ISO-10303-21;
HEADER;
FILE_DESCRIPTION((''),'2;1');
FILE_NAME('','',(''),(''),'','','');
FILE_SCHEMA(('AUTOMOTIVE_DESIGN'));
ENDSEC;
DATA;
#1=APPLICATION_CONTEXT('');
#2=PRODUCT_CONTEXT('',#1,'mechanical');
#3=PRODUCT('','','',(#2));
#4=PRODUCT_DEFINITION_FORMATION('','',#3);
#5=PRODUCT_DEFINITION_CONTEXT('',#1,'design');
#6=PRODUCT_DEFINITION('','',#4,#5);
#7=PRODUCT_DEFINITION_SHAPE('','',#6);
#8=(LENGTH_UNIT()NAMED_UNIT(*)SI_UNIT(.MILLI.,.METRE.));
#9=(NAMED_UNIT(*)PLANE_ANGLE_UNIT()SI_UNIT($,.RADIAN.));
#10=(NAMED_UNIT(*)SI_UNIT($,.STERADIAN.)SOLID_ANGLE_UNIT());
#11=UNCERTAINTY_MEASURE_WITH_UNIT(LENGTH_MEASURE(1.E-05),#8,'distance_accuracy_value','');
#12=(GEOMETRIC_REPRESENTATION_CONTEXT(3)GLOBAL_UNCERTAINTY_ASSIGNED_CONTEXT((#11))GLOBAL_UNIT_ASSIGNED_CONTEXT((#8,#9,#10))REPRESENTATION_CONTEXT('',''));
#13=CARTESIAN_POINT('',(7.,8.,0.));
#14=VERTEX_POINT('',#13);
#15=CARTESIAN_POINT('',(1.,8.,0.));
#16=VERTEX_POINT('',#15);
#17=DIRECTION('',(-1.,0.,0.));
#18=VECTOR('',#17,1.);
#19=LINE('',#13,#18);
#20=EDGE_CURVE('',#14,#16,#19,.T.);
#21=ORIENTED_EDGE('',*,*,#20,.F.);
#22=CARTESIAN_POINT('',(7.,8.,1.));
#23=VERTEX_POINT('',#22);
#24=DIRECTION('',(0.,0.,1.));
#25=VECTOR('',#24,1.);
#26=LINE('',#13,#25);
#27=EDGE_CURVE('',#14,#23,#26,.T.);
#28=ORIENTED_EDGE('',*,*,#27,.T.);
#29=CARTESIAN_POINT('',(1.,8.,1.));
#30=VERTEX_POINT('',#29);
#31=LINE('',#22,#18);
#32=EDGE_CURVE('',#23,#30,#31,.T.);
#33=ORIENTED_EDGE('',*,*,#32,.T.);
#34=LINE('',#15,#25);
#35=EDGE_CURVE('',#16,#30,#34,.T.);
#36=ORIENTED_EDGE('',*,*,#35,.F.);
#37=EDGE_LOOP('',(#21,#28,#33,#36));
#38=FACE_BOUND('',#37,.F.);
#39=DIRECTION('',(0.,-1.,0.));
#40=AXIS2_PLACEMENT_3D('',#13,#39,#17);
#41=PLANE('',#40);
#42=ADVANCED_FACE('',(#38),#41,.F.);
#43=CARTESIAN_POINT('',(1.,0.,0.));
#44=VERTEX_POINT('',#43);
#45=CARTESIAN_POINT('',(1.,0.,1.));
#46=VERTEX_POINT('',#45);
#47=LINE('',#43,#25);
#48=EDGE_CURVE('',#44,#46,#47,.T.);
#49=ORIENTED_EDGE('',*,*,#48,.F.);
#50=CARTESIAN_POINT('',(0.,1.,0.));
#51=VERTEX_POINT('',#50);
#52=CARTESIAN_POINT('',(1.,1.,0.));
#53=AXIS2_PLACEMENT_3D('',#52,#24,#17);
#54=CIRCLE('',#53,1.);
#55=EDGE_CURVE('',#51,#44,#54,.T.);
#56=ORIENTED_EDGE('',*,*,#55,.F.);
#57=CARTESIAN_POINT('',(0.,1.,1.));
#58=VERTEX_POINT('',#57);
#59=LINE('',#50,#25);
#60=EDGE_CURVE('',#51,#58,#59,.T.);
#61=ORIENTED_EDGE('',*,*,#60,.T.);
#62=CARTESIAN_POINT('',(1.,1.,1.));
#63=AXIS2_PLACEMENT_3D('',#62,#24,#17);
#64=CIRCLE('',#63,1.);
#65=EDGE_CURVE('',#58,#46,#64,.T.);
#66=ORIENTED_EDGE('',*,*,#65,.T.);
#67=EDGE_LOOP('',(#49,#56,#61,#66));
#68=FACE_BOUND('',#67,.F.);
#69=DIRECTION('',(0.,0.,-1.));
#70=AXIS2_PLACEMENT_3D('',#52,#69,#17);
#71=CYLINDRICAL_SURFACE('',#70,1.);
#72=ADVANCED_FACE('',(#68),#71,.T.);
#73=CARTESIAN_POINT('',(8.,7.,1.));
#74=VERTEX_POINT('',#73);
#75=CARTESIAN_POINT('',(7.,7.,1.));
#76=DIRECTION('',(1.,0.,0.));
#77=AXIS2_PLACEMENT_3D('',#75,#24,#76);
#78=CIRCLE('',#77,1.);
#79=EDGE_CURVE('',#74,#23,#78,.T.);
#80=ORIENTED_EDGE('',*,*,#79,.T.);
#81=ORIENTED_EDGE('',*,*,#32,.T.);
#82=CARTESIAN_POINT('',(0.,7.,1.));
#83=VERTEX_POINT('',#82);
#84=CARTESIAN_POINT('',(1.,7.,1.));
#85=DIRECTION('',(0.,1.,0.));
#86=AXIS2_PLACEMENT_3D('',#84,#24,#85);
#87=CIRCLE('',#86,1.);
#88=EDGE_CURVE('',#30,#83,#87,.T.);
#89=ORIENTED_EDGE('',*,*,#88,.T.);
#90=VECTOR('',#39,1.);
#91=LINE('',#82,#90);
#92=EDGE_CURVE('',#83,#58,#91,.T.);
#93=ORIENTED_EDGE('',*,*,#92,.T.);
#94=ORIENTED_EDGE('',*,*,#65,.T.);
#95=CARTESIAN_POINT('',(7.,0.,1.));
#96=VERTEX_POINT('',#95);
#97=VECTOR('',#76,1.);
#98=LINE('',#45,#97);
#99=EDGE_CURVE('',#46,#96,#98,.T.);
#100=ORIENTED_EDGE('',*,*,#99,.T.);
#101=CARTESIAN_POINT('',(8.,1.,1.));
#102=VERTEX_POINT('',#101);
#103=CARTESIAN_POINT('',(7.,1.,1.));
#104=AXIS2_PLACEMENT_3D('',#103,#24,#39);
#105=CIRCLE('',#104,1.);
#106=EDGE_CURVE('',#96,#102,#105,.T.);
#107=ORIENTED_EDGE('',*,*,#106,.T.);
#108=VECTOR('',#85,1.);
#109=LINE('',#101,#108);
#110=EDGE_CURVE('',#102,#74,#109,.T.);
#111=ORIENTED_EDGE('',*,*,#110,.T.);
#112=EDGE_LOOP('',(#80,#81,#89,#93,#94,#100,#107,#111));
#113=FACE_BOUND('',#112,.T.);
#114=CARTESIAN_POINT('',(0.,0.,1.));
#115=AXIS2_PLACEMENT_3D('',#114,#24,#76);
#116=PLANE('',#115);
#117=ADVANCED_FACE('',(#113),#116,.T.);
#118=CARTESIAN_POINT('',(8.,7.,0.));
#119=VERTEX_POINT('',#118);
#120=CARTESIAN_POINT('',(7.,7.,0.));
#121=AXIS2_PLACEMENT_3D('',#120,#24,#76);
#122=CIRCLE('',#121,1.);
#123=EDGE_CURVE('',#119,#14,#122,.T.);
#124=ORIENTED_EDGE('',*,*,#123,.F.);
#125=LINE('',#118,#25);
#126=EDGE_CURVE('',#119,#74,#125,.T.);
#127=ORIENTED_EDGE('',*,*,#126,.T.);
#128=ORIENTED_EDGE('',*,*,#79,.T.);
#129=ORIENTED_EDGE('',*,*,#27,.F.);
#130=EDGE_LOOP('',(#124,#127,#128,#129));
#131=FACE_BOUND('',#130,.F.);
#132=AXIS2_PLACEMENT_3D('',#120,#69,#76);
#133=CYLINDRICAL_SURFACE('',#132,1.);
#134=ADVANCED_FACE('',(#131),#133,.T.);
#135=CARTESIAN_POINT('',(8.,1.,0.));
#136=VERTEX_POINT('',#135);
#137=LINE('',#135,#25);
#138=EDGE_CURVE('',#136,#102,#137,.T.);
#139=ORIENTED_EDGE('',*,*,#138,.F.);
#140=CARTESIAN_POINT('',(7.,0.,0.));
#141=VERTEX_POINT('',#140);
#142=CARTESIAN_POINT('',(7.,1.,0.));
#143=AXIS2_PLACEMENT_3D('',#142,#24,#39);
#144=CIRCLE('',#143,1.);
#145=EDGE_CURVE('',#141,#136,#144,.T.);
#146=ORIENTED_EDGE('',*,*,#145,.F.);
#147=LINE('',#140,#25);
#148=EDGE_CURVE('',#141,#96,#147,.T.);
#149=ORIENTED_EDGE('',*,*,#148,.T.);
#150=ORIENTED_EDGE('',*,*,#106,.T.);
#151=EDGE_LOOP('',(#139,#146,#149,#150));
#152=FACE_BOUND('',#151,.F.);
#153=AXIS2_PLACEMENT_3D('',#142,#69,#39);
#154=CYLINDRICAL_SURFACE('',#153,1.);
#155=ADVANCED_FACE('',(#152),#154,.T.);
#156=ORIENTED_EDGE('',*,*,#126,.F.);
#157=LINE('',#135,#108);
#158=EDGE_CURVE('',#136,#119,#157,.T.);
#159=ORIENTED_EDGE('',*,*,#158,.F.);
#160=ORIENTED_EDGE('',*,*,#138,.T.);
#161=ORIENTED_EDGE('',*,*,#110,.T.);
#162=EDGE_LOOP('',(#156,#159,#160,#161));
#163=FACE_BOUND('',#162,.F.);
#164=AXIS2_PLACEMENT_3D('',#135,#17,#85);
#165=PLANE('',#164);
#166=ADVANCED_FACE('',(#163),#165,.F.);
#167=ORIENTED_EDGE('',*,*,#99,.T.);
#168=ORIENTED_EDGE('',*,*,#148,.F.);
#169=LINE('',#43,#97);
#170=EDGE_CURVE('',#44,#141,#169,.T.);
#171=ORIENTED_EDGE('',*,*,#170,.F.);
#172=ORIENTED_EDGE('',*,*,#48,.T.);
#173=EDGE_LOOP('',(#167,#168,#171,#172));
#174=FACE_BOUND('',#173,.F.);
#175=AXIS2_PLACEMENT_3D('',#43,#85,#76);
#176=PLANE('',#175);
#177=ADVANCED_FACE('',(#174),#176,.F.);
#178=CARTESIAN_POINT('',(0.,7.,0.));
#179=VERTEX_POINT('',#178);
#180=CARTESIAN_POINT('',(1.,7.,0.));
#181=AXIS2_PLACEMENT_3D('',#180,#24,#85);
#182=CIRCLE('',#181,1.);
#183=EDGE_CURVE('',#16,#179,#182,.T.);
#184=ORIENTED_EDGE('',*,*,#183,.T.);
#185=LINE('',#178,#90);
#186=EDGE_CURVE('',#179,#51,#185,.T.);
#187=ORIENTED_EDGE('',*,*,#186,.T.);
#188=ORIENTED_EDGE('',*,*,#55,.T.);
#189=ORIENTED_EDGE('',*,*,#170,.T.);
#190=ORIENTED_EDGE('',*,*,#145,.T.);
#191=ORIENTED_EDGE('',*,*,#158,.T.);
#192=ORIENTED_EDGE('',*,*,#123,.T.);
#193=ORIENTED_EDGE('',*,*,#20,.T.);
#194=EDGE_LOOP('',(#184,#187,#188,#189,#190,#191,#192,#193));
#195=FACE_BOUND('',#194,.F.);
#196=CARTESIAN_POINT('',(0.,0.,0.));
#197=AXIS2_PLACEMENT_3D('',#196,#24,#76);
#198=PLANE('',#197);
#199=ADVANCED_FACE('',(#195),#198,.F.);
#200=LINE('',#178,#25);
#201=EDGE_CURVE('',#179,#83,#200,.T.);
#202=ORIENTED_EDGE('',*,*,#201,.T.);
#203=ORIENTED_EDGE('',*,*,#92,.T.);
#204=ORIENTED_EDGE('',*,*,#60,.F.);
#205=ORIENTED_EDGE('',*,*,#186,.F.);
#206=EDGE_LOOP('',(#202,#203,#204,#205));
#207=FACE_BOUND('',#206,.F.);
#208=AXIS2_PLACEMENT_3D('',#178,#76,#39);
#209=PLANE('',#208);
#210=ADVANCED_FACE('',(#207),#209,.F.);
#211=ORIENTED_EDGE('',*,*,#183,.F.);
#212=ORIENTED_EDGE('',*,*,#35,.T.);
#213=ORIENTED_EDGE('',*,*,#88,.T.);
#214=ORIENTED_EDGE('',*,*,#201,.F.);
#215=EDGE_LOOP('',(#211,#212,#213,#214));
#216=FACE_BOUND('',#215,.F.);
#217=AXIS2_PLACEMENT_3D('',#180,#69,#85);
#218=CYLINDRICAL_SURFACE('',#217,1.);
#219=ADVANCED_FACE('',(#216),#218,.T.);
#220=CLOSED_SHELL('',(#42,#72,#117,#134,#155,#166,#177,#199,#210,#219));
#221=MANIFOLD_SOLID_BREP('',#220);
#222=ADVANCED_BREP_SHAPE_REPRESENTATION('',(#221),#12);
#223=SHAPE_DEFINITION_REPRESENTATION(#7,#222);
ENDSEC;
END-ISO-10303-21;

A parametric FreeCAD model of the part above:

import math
import FreeCAD as App
import Part
import Sketcher

doc = App.newDocument("Part")
params = doc.addObject("Spreadsheet::Sheet", "Params")
for row, (alias, value) in enumerate([
    ("sketch1_radius", "1 mm"),
    ("pad1_length", "1 mm"),
], start=1):
    params.set(f"A{row}", alias)
    params.set(f"B{row}", "=" + value)
    params.setAlias(f"B{row}", alias)

body = doc.addObject("PartDesign::Body", "Body")

# Sketch on XY plane
sketch1 = body.newObject("Sketcher::SketchObject", "Sketch")
sketch1.AttachmentSupport = (doc.getObject("XY_Plane"), [""])
sketch1.MapMode = "FlatFace"
sketch1.addGeometry(Part.ArcOfCircle(Part.Circle(App.Vector(1, 1, 0), App.Vector(0, 0, 1), 1), math.radians(180), math.radians(270)), False)
sketch1.addGeometry(Part.LineSegment(App.Vector(1, 0, 0), App.Vector(7, 0, 0)), False)
sketch1.addGeometry(Part.ArcOfCircle(Part.Circle(App.Vector(7, 1, 0), App.Vector(0, 0, 1), 1), math.radians(-90), math.radians(0)), False)
sketch1.addGeometry(Part.LineSegment(App.Vector(8, 1, 0), App.Vector(8, 7, 0)), False)
sketch1.addGeometry(Part.ArcOfCircle(Part.Circle(App.Vector(7, 7, 0), App.Vector(0, 0, 1), 1), math.radians(0), math.radians(90)), False)
sketch1.addGeometry(Part.LineSegment(App.Vector(7, 8, 0), App.Vector(1, 8, 0)), False)
sketch1.addGeometry(Part.ArcOfCircle(Part.Circle(App.Vector(1, 7, 0), App.Vector(0, 0, 1), 1), math.radians(90), math.radians(180)), False)
sketch1.addGeometry(Part.LineSegment(App.Vector(0, 7, 0), App.Vector(0, 1, 0)), False)
sketch1.addConstraint(Sketcher.Constraint("Tangent", 0, 2, 1, 1))
sketch1.addConstraint(Sketcher.Constraint("Tangent", 1, 2, 2, 1))
sketch1.addConstraint(Sketcher.Constraint("Tangent", 2, 2, 3, 1))
sketch1.addConstraint(Sketcher.Constraint("Tangent", 3, 2, 4, 1))
sketch1.addConstraint(Sketcher.Constraint("Tangent", 4, 2, 5, 1))
sketch1.addConstraint(Sketcher.Constraint("Tangent", 5, 2, 6, 1))
sketch1.addConstraint(Sketcher.Constraint("Tangent", 6, 2, 7, 1))
sketch1.addConstraint(Sketcher.Constraint("Tangent", 7, 2, 0, 1))
sketch1.addConstraint(Sketcher.Constraint("Horizontal", 1))
sketch1.addConstraint(Sketcher.Constraint("Vertical", 3))
sketch1.addConstraint(Sketcher.Constraint("Horizontal", 5))
sketch1.addConstraint(Sketcher.Constraint("Vertical", 7))
sketch1.addConstraint(Sketcher.Constraint("Equal", 0, 2))
sketch1.addConstraint(Sketcher.Constraint("Equal", 2, 4))
sketch1.addConstraint(Sketcher.Constraint("Equal", 4, 6))
sketch1.addConstraint(Sketcher.Constraint("PointOnObject", 0, 2, -1))
sketch1.addConstraint(Sketcher.Constraint("PointOnObject", 6, 2, -2))
sketch1.addConstraint(Sketcher.Constraint("Equal", 5, 3))
sketch1.addConstraint(Sketcher.Constraint("Radius", 0, 1.0))
sketch1.addConstraint(Sketcher.Constraint("DistanceX", -1, 1, 2, 2, 8.0))
sketch1.setExpression("Constraints[18]", "Params.sketch1_radius")
pad1 = body.newObject("PartDesign::Pad", "Pad")
pad1.Profile = sketch1
pad1.setExpression("Length", "Params.pad1_length")

doc.recompute()
